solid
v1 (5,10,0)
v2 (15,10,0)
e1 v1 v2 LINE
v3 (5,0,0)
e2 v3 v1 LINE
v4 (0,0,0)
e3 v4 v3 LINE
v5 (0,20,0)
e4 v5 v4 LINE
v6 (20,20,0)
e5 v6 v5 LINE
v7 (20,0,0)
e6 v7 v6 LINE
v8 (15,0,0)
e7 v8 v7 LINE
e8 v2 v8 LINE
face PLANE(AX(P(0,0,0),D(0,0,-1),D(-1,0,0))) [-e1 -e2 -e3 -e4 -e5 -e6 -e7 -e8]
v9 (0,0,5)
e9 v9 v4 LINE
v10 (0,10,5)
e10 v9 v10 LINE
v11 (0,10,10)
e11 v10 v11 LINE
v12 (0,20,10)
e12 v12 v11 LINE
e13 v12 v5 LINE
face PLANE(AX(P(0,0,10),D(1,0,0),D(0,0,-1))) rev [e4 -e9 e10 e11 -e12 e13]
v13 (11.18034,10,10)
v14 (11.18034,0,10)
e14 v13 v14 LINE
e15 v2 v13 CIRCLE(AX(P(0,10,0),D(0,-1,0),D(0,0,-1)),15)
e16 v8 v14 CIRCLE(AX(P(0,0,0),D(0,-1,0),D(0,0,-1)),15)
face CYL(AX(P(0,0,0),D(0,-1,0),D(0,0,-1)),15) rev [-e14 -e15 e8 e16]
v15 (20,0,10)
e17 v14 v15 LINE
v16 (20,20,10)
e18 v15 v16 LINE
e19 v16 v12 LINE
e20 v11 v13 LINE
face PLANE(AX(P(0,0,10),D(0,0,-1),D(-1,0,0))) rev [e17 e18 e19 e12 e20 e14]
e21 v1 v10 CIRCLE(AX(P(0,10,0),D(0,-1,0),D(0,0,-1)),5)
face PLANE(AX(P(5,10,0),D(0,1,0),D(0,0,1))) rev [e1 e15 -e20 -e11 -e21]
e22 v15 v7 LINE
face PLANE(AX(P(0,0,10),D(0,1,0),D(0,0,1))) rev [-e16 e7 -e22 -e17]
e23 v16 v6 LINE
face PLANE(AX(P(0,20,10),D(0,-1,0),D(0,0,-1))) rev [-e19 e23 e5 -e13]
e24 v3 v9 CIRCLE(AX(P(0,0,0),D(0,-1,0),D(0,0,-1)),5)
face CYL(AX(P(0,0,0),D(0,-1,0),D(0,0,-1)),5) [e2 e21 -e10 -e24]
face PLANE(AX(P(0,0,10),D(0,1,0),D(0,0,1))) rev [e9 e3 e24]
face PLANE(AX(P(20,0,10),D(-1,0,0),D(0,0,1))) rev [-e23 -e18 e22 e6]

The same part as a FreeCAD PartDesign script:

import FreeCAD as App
import Part
import Sketcher

V = App.Vector


def add_polygon(sketch, points):
    """Adds a closed chain of lines whose ends are joined by coincident constraints."""
    first, n = sketch.GeometryCount, len(points)
    for a, b in zip(points, points[1:] + points[:1]):
        sketch.addGeometry(Part.LineSegment(App.Vector(*a, 0), App.Vector(*b, 0)), False)
    for i in range(n):
        sketch.addConstraint(Sketcher.Constraint("Coincident", first + i, 2, first + (i + 1) % n, 1))

doc = App.newDocument("Part")
body = doc.addObject("PartDesign::Body", "Body")

sketch1 = body.newObject("Sketcher::SketchObject", "Sketch")
sketch1.AttachmentSupport = (doc.getObject("XY_Plane"), [""])
sketch1.MapMode = "FlatFace"
add_polygon(sketch1, [(0, 20), (0, 0), (20, 0), (20, 20)])
sketch1.addConstraint([
    Sketcher.Constraint("Vertical", 0),
    Sketcher.Constraint("Horizontal", 1),
    Sketcher.Constraint("Vertical", 2),
    Sketcher.Constraint("Horizontal", 3),
    Sketcher.Constraint("Coincident", 0, 2, -1, 1),
    Sketcher.Constraint("Equal", 3, 0),
    Sketcher.Constraint("DistanceX", 1, 1, 1, 2, 20.0),
])
pad1 = body.newObject("PartDesign::Pad", "Pad")
pad1.Profile = sketch1
pad1.Length = 10

sketch2 = body.newObject("Sketcher::SketchObject", "Sketch001")
sketch2.AttachmentSupport = (doc.getObject("XY_Plane"), [""])
sketch2.MapMode = "FlatFace"
add_polygon(sketch2, [(5, 10), (5, 0), (15, 0), (15, 10)])
sketch2.addConstraint([
    Sketcher.Constraint("Vertical", 0),
    Sketcher.Constraint("Horizontal", 1),
    Sketcher.Constraint("Vertical", 2),
    Sketcher.Constraint("Horizontal", 3),
    Sketcher.Constraint("PointOnObject", 0, 2, -1),
    Sketcher.Constraint("Equal", 3, 0),
    Sketcher.Constraint("DistanceX", 1, 1, 1, 2, 10.0),
    Sketcher.Constraint("DistanceX", -1, 1, 0, 2, 5.0),
])
groove = body.newObject("PartDesign::Groove", "Groove")
groove.Profile = sketch2
groove.ReferenceAxis = (sketch2, ["V_Axis"])
groove.Angle = 360

doc.recompute()
